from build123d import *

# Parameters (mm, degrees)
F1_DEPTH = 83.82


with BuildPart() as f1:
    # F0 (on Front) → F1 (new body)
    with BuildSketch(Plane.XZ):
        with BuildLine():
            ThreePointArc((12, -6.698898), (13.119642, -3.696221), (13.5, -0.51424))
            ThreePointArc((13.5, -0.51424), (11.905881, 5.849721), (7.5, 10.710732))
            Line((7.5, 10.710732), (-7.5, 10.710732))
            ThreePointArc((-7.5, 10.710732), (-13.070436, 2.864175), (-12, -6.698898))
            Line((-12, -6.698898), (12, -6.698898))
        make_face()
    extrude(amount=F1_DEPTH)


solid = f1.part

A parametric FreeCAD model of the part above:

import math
import FreeCAD as App
import Part
import Sketcher

V = App.Vector

doc = App.newDocument("Part")
body = doc.addObject("PartDesign::Body", "Body")

sketch1 = body.newObject("Sketcher::SketchObject", "Sketch")
sketch1.AttachmentSupport = (doc.getObject("XZ_Plane"), [""])
sketch1.MapMode = "FlatFace"
sketch1.addGeometry([
    Part.ArcOfCircle(Part.Circle(V(0.000015, -0.514243, 0), V(0, 0, 1), 13.499985), math.radians(-27.26606), math.radians(0.000014)),
    Part.ArcOfCircle(Part.Circle(V(0.000001, -0.51424, 0), V(0, 0, 1), 13.499999), math.radians(-0.000002), math.radians(56.251014)),
    Part.LineSegment(V(7.5, 10.710732, 0), V(-7.5, 10.710732, 0)),
    Part.ArcOfCircle(Part.Circle(V(0.000001, -0.51424, 0), V(0, 0, 1), 13.500001), math.radians(123.748993), math.radians(207.266039)),
    Part.LineSegment(V(-12, -6.698898, 0), V(12, -6.698898, 0)),
], False)
sketch1.addConstraint([
    Sketcher.Constraint("Coincident", 0, 2, 1, 1),
    Sketcher.Constraint("Coincident", 1, 2, 2, 1),
    Sketcher.Constraint("Coincident", 2, 2, 3, 1),
    Sketcher.Constraint("Coincident", 3, 2, 4, 1),
    Sketcher.Constraint("Coincident", 4, 2, 0, 1),
    Sketcher.Constraint("Horizontal", 2),
    Sketcher.Constraint("Horizontal", 4),
    Sketcher.Constraint("Coincident", 3, 3, 1, 3),
    Sketcher.Constraint("PointOnObject", 1, 3, -2),
    Sketcher.Constraint("Radius", 1, 13.499999),
    Sketcher.Constraint("Radius", 3, 13.500001),
    Sketcher.Constraint("DistanceX", 2, 2, 2, 1, 15.0),
    Sketcher.Constraint("DistanceX", 4, 1, 4, 2, 24.0),
    Sketcher.Constraint("DistanceX", 3, 2, -1, 1, 12.0),
    Sketcher.Constraint("Radius", 0, 13.499985),
    Sketcher.Constraint("DistanceY", 1, 3, -1, 1, 0.51424),
    Sketcher.Constraint("DistanceY", 0, 2, -1, 1, 0.51424),
])
pad1 = body.newObject("PartDesign::Pad", "Pad")
pad1.Profile = sketch1
pad1.Length = 83.82

doc.recompute()
